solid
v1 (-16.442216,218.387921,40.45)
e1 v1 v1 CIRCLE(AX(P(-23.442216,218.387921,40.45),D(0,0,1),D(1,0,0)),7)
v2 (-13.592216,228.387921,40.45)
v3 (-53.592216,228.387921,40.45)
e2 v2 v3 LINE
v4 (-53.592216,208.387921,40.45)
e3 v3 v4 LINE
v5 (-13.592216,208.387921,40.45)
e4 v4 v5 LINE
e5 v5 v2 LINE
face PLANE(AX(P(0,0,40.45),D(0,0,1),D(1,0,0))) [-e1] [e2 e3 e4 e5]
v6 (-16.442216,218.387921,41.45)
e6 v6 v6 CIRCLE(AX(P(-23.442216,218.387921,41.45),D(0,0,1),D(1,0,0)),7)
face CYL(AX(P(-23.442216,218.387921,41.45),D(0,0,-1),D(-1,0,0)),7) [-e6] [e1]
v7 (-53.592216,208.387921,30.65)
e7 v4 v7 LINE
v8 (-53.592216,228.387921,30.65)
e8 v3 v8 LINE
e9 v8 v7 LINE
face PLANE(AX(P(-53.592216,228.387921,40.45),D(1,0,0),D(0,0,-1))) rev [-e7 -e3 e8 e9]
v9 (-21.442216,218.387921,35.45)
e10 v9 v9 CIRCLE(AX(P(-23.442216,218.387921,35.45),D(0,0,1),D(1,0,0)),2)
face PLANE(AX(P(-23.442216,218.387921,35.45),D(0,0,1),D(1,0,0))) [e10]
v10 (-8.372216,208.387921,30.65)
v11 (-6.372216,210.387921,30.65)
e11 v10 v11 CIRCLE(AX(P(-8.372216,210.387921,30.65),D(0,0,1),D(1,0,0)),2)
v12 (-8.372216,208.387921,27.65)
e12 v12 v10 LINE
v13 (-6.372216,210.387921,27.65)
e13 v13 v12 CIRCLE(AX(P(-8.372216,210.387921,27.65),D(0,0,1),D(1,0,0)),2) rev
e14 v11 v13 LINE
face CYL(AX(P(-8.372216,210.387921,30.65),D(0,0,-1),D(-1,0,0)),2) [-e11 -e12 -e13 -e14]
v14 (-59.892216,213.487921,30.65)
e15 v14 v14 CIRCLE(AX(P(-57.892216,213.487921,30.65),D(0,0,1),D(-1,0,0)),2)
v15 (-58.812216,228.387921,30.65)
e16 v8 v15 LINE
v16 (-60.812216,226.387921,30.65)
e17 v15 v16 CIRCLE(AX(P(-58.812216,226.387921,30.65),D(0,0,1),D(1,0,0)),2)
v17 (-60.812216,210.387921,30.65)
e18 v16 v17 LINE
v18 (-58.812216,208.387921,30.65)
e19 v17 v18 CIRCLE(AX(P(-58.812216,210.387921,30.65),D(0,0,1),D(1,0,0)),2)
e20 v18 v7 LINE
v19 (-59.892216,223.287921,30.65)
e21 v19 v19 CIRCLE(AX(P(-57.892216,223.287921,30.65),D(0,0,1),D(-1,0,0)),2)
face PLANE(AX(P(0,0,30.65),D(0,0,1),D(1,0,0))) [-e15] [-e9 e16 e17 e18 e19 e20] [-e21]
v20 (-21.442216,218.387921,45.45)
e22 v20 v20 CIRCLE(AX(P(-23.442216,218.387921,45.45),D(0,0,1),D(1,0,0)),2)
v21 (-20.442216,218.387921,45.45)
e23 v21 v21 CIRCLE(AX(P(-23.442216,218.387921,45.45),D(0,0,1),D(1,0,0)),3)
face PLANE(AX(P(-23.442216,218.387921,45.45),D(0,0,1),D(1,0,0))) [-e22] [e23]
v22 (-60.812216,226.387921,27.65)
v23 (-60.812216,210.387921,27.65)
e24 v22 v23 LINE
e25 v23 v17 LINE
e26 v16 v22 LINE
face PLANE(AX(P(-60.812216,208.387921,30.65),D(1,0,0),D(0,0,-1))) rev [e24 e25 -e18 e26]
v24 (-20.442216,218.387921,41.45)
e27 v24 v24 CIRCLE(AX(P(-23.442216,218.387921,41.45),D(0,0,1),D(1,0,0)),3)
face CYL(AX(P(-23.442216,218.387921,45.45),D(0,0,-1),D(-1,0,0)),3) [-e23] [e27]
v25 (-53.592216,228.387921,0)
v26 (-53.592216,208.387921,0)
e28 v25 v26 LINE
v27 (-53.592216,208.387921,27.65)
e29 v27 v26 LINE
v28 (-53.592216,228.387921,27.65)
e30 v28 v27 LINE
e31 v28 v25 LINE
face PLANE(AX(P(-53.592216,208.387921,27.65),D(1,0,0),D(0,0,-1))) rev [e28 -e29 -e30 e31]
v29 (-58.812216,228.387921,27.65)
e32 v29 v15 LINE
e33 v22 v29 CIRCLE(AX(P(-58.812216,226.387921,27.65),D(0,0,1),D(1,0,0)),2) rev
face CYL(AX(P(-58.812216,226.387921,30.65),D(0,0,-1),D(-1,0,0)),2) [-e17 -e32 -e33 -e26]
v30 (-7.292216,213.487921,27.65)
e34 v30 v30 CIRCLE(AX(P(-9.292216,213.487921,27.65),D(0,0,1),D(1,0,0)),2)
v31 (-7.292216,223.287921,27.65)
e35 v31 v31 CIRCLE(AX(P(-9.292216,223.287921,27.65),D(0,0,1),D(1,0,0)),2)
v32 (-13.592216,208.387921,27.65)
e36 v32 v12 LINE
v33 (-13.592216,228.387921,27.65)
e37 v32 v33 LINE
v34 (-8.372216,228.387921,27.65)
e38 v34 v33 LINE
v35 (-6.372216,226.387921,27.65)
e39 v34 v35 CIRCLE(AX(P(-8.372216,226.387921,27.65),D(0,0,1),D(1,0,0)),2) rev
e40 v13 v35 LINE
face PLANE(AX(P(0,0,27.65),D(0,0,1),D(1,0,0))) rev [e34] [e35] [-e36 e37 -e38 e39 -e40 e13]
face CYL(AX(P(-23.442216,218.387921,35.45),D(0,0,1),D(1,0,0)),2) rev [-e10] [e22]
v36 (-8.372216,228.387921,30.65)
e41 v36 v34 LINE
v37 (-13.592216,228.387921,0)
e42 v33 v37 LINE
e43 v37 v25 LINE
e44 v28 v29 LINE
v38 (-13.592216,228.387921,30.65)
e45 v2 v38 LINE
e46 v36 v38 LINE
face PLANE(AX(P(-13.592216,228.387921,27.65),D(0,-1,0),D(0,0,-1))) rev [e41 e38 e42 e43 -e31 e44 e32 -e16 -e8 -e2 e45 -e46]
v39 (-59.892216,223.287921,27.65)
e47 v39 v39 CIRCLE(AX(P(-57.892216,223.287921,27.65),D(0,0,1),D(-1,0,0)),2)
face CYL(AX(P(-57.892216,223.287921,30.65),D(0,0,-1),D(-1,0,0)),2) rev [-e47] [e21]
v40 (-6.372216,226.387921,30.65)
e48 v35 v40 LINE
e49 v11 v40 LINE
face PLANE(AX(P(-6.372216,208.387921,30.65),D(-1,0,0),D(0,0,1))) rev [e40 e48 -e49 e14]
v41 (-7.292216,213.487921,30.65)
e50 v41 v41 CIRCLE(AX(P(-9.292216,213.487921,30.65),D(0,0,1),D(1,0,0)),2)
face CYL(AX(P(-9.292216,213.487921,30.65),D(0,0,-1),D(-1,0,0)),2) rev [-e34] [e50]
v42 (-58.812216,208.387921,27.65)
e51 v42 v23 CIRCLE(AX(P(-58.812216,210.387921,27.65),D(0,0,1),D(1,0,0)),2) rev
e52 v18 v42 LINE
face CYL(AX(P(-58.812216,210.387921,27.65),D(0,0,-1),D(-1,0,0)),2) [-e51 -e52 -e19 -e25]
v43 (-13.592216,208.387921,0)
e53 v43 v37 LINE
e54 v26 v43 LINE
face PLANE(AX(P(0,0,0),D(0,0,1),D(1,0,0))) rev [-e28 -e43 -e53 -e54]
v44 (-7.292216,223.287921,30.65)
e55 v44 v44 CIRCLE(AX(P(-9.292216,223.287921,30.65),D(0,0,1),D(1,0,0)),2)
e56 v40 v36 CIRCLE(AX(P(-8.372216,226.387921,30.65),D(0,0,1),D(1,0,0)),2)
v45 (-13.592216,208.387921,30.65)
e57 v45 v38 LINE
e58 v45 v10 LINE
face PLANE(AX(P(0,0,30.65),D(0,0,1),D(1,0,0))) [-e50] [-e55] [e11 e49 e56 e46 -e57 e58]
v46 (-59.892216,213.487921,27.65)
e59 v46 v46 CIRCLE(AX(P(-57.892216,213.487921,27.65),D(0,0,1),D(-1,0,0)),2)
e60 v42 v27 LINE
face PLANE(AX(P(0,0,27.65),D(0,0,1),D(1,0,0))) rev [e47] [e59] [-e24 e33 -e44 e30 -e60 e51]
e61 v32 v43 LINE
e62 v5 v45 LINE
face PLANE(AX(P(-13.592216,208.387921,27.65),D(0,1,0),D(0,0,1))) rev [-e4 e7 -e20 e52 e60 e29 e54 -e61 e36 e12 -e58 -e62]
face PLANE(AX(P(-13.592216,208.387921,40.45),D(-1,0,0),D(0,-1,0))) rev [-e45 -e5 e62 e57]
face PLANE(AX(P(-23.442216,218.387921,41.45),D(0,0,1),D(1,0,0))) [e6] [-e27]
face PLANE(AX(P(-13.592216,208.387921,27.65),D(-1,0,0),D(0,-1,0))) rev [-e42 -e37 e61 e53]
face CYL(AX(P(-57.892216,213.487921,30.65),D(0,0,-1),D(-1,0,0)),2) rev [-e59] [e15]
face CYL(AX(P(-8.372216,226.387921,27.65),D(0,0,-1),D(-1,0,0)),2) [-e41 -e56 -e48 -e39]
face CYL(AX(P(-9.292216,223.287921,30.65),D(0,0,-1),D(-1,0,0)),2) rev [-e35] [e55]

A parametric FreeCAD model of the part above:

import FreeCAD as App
import Part
import Sketcher

V = App.Vector


def edges_at(feature, points):
    """Names of the edges that pass closest to the given points."""
    edges = feature.Shape.Edges
    near = lambda p: min(range(len(edges)), key=lambda i: edges[i].distToShape(Part.Vertex(*p))[0])
    return sorted({f"Edge{near(p) + 1}" for p in points})


def add_polygon(sketch, points):
    """Adds a closed chain of lines whose ends are joined by coincident constraints."""
    first, n = sketch.GeometryCount, len(points)
    for a, b in zip(points, points[1:] + points[:1]):
        sketch.addGeometry(Part.LineSegment(App.Vector(*a, 0), App.Vector(*b, 0)), False)
    for i in range(n):
        sketch.addConstraint(Sketcher.Constraint("Coincident", first + i, 2, first + (i + 1) % n, 1))

doc = App.newDocument("Part")
params = doc.addObject("Spreadsheet::Sheet", "Params")
for row, (alias, value) in enumerate([
    ("sketch1_width", "40 mm"),
    ("sketch1_height", "20 mm"),
    ("pad1_length", "27.65 mm"),
    ("sketch2_diameter", "4 mm"),
    ("sketch2_height", "20 mm"),
    ("sketch2_width", "54.44 mm"),
    ("pad2_length", "3 mm"),
    ("sketch3_width", "40 mm"),
    ("sketch3_height", "20 mm"),
    ("pad3_length", "9.8 mm"),
    ("sketch4_diameter", "14 mm"),
    ("pad4_length", "1 mm"),
    ("sketch5_diameter", "6 mm"),
    ("pad5_length", "4 mm"),
    ("fillet_radius", "2 mm"),
    ("sketch6_diameter", "4 mm"),
    ("pocket1_length", "10 mm"),
], start=1):
    params.set(f"A{row}", alias)
    params.set(f"B{row}", "=" + value)
    params.setAlias(f"B{row}", alias)

body = doc.addObject("PartDesign::Body", "Body")

# Sketch on XY plane
sketch1 = doc.addObject("Sketcher::SketchObject", "Sketch")
body.addObject(sketch1)
sketch1.AttachmentSupport = (doc.XY_Plane, [""])
sketch1.MapMode = "FlatFace"
add_polygon(sketch1, [(-54, 228), (-54, 208), (-14, 208), (-14, 228)])  # lines 0-3
sketch1.addConstraint([
    Sketcher.Constraint("Vertical", 0),
    Sketcher.Constraint("Horizontal", 1),
    Sketcher.Constraint("Vertical", 2),
    Sketcher.Constraint("Horizontal", 3),
    Sketcher.Constraint("DistanceX", 1, 1, 1, 2, 40.0),
    Sketcher.Constraint("DistanceY", 0, 2, 0, 1, 20.0),
    Sketcher.Constraint("DistanceY", -1, 1, 0, 2, 208.387921),
    Sketcher.Constraint("DistanceX", 0, 2, -1, 1, 53.592216),
])
sketch1.setExpression("Constraints[8]", "Params.sketch1_width")
sketch1.setExpression("Constraints[9]", "Params.sketch1_height")
pad1 = doc.addObject("PartDesign::Pad", "Pad")
body.addObject(pad1)
pad1.Profile = sketch1
pad1.setExpression("Length", "Params.pad1_length")

# Sketch on XY plane
sketch2 = doc.addObject("Sketcher::SketchObject", "Sketch001")
body.addObject(sketch2)
sketch2.AttachmentSupport = (doc.XY_Plane, [""])
sketch2.MapMode = "FlatFace"
sketch2.AttachmentOffset = App.Placement(V(0, 0, 27.65), App.Rotation())
add_polygon(sketch2, [(-60.8, 228.4), (-60.8, 208.4), (-6.4, 208.4), (-6.4, 228.4)])  # lines 0-3
sketch2.addGeometry(Part.Circle(V(-57.9, 213.5, 0), V(0, 0, 1), 2), False)  # 4
sketch2.addGeometry(Part.Circle(V(-9.3, 213.5, 0), V(0, 0, 1), 2), False)  # 5
sketch2.addGeometry(Part.Circle(V(-57.9, 223.3, 0), V(0, 0, 1), 2), False)  # 6
sketch2.addGeometry(Part.Circle(V(-9.3, 223.3, 0), V(0, 0, 1), 2), False)  # 7
sketch2.addConstraint([
    Sketcher.Constraint("Vertical", 0),
    Sketcher.Constraint("Horizontal", 1),
    Sketcher.Constraint("Vertical", 2),
    Sketcher.Constraint("Horizontal", 3),
    Sketcher.Constraint("Equal", 4, 5),
    Sketcher.Constraint("Equal", 5, 6),
    Sketcher.Constraint("Equal", 6, 7),
    Sketcher.Constraint("Horizontal", 4, 3, 5, 3),
    Sketcher.Constraint("Horizontal", 6, 3, 7, 3),
    Sketcher.Constraint("Vertical", 4, 3, 6, 3),
    Sketcher.Constraint("Vertical", 5, 3, 7, 3),
    Sketcher.Constraint("Diameter", 4, 4.0),
    Sketcher.Constraint("DistanceY", 0, 2, 0, 1, 20.0),
    Sketcher.Constraint("DistanceX", 1, 1, 1, 2, 54.44),
    Sketcher.Constraint("DistanceX", 4, 3, 5, 3, 48.6),
    Sketcher.Constraint("DistanceY", 4, 3, 6, 3, 9.8),
    Sketcher.Constraint("DistanceY", 0, 2, 4, 3, 5.1),
    Sketcher.Constraint("DistanceX", 0, 2, 4, 3, 2.92),
    Sketcher.Constraint("DistanceY", -1, 1, 4, 3, 213.487921),
    Sketcher.Constraint("DistanceX", 4, 3, -1, 1, 57.892216),
])
sketch2.setExpression("Constraints[15]", "Params.sketch2_diameter")
sketch2.setExpression("Constraints[16]", "Params.sketch2_height")
sketch2.setExpression("Constraints[17]", "Params.sketch2_width")
pad2 = doc.addObject("PartDesign::Pad", "Pad001")
body.addObject(pad2)
pad2.Profile = sketch2
pad2.setExpression("Length", "Params.pad2_length")

# Sketch on XY plane
sketch3 = doc.addObject("Sketcher::SketchObject", "Sketch002")
body.addObject(sketch3)
sketch3.AttachmentSupport = (doc.XY_Plane, [""])
sketch3.MapMode = "FlatFace"
sketch3.AttachmentOffset = App.Placement(V(0, 0, 30.65), App.Rotation())
add_polygon(sketch3, [(-54, 228), (-54, 208), (-14, 208), (-14, 228)])  # lines 0-3
sketch3.addConstraint([
    Sketcher.Constraint("Vertical", 0),
    Sketcher.Constraint("Horizontal", 1),
    Sketcher.Constraint("Vertical", 2),
    Sketcher.Constraint("Horizontal", 3),
    Sketcher.Constraint("DistanceX", 1, 1, 1, 2, 40.0),
    Sketcher.Constraint("DistanceY", 0, 2, 0, 1, 20.0),
    Sketcher.Constraint("DistanceY", -1, 1, 0, 2, 208.387921),
    Sketcher.Constraint("DistanceX", 0, 2, -1, 1, 53.592216),
])
sketch3.setExpression("Constraints[8]", "Params.sketch3_width")
sketch3.setExpression("Constraints[9]", "Params.sketch3_height")
pad3 = doc.addObject("PartDesign::Pad", "Pad002")
body.addObject(pad3)
pad3.Profile = sketch3
pad3.setExpression("Length", "Params.pad3_length")

# Sketch on XY plane
sketch4 = doc.addObject("Sketcher::SketchObject", "Sketch003")
body.addObject(sketch4)
sketch4.AttachmentSupport = (doc.XY_Plane, [""])
sketch4.MapMode = "FlatFace"
sketch4.AttachmentOffset = App.Placement(V(0, 0, 40.45), App.Rotation())
sketch4.addGeometry(Part.Circle(V(-23, 218, 0), V(0, 0, 1), 7), False)
sketch4.addConstraint([
    Sketcher.Constraint("Diameter", 0, 14.0),
    Sketcher.Constraint("DistanceY", -1, 1, 0, 3, 218.387921),
    Sketcher.Constraint("DistanceX", 0, 3, -1, 1, 23.442216),
])
sketch4.setExpression("Constraints[0]", "Params.sketch4_diameter")
pad4 = doc.addObject("PartDesign::Pad", "Pad003")
body.addObject(pad4)
pad4.Profile = sketch4
pad4.setExpression("Length", "Params.pad4_length")

# Sketch on XY plane
sketch5 = doc.addObject("Sketcher::SketchObject", "Sketch004")
body.addObject(sketch5)
sketch5.AttachmentSupport = (doc.XY_Plane, [""])
sketch5.MapMode = "FlatFace"
sketch5.AttachmentOffset = App.Placement(V(0, 0, 41.45), App.Rotation())
sketch5.addGeometry(Part.Circle(V(-23.4, 218.4, 0), V(0, 0, 1), 3), False)
sketch5.addConstraint([
    Sketcher.Constraint("Diameter", 0, 6.0),
    Sketcher.Constraint("DistanceY", -1, 1, 0, 3, 218.387921),
    Sketcher.Constraint("DistanceX", 0, 3, -1, 1, 23.442216),
])
sketch5.setExpression("Constraints[0]", "Params.sketch5_diameter")
pad5 = doc.addObject("PartDesign::Pad", "Pad004")
body.addObject(pad5)
pad5.Profile = sketch5
pad5.setExpression("Length", "Params.pad5_length")
doc.recompute()

fillet = doc.addObject("PartDesign::Fillet", "Fillet")
body.addObject(fillet)
fillet.Base = (pad5, edges_at(pad5, [
    (-6.372, 208.388, 29.15),
    (-60.812, 208.388, 29.15),
    (-6.372, 228.388, 29.15),
    (-60.812, 228.388, 29.15),
]))
fillet.setExpression("Radius", "Params.fillet_radius")

# Sketch on XY plane
sketch6 = doc.addObject("Sketcher::SketchObject", "Sketch005")
body.addObject(sketch6)
sketch6.AttachmentSupport = (doc.XY_Plane, [""])
sketch6.MapMode = "FlatFace"
sketch6.AttachmentOffset = App.Placement(V(0, 0, 45.45), App.Rotation())
sketch6.addGeometry(Part.Circle(V(-23.4, 218.4, 0), V(0, 0, 1), 2), False)
sketch6.addConstraint([
    Sketcher.Constraint("Diameter", 0, 4.0),
    Sketcher.Constraint("DistanceY", -1, 1, 0, 3, 218.387921),
    Sketcher.Constraint("DistanceX", 0, 3, -1, 1, 23.442216),
])
sketch6.setExpression("Constraints[0]", "Params.sketch6_diameter")
pocket1 = doc.addObject("PartDesign::Pocket", "Pocket")
body.addObject(pocket1)
pocket1.Profile = sketch6
pocket1.setExpression("Length", "Params.pocket1_length")

doc.recompute()
